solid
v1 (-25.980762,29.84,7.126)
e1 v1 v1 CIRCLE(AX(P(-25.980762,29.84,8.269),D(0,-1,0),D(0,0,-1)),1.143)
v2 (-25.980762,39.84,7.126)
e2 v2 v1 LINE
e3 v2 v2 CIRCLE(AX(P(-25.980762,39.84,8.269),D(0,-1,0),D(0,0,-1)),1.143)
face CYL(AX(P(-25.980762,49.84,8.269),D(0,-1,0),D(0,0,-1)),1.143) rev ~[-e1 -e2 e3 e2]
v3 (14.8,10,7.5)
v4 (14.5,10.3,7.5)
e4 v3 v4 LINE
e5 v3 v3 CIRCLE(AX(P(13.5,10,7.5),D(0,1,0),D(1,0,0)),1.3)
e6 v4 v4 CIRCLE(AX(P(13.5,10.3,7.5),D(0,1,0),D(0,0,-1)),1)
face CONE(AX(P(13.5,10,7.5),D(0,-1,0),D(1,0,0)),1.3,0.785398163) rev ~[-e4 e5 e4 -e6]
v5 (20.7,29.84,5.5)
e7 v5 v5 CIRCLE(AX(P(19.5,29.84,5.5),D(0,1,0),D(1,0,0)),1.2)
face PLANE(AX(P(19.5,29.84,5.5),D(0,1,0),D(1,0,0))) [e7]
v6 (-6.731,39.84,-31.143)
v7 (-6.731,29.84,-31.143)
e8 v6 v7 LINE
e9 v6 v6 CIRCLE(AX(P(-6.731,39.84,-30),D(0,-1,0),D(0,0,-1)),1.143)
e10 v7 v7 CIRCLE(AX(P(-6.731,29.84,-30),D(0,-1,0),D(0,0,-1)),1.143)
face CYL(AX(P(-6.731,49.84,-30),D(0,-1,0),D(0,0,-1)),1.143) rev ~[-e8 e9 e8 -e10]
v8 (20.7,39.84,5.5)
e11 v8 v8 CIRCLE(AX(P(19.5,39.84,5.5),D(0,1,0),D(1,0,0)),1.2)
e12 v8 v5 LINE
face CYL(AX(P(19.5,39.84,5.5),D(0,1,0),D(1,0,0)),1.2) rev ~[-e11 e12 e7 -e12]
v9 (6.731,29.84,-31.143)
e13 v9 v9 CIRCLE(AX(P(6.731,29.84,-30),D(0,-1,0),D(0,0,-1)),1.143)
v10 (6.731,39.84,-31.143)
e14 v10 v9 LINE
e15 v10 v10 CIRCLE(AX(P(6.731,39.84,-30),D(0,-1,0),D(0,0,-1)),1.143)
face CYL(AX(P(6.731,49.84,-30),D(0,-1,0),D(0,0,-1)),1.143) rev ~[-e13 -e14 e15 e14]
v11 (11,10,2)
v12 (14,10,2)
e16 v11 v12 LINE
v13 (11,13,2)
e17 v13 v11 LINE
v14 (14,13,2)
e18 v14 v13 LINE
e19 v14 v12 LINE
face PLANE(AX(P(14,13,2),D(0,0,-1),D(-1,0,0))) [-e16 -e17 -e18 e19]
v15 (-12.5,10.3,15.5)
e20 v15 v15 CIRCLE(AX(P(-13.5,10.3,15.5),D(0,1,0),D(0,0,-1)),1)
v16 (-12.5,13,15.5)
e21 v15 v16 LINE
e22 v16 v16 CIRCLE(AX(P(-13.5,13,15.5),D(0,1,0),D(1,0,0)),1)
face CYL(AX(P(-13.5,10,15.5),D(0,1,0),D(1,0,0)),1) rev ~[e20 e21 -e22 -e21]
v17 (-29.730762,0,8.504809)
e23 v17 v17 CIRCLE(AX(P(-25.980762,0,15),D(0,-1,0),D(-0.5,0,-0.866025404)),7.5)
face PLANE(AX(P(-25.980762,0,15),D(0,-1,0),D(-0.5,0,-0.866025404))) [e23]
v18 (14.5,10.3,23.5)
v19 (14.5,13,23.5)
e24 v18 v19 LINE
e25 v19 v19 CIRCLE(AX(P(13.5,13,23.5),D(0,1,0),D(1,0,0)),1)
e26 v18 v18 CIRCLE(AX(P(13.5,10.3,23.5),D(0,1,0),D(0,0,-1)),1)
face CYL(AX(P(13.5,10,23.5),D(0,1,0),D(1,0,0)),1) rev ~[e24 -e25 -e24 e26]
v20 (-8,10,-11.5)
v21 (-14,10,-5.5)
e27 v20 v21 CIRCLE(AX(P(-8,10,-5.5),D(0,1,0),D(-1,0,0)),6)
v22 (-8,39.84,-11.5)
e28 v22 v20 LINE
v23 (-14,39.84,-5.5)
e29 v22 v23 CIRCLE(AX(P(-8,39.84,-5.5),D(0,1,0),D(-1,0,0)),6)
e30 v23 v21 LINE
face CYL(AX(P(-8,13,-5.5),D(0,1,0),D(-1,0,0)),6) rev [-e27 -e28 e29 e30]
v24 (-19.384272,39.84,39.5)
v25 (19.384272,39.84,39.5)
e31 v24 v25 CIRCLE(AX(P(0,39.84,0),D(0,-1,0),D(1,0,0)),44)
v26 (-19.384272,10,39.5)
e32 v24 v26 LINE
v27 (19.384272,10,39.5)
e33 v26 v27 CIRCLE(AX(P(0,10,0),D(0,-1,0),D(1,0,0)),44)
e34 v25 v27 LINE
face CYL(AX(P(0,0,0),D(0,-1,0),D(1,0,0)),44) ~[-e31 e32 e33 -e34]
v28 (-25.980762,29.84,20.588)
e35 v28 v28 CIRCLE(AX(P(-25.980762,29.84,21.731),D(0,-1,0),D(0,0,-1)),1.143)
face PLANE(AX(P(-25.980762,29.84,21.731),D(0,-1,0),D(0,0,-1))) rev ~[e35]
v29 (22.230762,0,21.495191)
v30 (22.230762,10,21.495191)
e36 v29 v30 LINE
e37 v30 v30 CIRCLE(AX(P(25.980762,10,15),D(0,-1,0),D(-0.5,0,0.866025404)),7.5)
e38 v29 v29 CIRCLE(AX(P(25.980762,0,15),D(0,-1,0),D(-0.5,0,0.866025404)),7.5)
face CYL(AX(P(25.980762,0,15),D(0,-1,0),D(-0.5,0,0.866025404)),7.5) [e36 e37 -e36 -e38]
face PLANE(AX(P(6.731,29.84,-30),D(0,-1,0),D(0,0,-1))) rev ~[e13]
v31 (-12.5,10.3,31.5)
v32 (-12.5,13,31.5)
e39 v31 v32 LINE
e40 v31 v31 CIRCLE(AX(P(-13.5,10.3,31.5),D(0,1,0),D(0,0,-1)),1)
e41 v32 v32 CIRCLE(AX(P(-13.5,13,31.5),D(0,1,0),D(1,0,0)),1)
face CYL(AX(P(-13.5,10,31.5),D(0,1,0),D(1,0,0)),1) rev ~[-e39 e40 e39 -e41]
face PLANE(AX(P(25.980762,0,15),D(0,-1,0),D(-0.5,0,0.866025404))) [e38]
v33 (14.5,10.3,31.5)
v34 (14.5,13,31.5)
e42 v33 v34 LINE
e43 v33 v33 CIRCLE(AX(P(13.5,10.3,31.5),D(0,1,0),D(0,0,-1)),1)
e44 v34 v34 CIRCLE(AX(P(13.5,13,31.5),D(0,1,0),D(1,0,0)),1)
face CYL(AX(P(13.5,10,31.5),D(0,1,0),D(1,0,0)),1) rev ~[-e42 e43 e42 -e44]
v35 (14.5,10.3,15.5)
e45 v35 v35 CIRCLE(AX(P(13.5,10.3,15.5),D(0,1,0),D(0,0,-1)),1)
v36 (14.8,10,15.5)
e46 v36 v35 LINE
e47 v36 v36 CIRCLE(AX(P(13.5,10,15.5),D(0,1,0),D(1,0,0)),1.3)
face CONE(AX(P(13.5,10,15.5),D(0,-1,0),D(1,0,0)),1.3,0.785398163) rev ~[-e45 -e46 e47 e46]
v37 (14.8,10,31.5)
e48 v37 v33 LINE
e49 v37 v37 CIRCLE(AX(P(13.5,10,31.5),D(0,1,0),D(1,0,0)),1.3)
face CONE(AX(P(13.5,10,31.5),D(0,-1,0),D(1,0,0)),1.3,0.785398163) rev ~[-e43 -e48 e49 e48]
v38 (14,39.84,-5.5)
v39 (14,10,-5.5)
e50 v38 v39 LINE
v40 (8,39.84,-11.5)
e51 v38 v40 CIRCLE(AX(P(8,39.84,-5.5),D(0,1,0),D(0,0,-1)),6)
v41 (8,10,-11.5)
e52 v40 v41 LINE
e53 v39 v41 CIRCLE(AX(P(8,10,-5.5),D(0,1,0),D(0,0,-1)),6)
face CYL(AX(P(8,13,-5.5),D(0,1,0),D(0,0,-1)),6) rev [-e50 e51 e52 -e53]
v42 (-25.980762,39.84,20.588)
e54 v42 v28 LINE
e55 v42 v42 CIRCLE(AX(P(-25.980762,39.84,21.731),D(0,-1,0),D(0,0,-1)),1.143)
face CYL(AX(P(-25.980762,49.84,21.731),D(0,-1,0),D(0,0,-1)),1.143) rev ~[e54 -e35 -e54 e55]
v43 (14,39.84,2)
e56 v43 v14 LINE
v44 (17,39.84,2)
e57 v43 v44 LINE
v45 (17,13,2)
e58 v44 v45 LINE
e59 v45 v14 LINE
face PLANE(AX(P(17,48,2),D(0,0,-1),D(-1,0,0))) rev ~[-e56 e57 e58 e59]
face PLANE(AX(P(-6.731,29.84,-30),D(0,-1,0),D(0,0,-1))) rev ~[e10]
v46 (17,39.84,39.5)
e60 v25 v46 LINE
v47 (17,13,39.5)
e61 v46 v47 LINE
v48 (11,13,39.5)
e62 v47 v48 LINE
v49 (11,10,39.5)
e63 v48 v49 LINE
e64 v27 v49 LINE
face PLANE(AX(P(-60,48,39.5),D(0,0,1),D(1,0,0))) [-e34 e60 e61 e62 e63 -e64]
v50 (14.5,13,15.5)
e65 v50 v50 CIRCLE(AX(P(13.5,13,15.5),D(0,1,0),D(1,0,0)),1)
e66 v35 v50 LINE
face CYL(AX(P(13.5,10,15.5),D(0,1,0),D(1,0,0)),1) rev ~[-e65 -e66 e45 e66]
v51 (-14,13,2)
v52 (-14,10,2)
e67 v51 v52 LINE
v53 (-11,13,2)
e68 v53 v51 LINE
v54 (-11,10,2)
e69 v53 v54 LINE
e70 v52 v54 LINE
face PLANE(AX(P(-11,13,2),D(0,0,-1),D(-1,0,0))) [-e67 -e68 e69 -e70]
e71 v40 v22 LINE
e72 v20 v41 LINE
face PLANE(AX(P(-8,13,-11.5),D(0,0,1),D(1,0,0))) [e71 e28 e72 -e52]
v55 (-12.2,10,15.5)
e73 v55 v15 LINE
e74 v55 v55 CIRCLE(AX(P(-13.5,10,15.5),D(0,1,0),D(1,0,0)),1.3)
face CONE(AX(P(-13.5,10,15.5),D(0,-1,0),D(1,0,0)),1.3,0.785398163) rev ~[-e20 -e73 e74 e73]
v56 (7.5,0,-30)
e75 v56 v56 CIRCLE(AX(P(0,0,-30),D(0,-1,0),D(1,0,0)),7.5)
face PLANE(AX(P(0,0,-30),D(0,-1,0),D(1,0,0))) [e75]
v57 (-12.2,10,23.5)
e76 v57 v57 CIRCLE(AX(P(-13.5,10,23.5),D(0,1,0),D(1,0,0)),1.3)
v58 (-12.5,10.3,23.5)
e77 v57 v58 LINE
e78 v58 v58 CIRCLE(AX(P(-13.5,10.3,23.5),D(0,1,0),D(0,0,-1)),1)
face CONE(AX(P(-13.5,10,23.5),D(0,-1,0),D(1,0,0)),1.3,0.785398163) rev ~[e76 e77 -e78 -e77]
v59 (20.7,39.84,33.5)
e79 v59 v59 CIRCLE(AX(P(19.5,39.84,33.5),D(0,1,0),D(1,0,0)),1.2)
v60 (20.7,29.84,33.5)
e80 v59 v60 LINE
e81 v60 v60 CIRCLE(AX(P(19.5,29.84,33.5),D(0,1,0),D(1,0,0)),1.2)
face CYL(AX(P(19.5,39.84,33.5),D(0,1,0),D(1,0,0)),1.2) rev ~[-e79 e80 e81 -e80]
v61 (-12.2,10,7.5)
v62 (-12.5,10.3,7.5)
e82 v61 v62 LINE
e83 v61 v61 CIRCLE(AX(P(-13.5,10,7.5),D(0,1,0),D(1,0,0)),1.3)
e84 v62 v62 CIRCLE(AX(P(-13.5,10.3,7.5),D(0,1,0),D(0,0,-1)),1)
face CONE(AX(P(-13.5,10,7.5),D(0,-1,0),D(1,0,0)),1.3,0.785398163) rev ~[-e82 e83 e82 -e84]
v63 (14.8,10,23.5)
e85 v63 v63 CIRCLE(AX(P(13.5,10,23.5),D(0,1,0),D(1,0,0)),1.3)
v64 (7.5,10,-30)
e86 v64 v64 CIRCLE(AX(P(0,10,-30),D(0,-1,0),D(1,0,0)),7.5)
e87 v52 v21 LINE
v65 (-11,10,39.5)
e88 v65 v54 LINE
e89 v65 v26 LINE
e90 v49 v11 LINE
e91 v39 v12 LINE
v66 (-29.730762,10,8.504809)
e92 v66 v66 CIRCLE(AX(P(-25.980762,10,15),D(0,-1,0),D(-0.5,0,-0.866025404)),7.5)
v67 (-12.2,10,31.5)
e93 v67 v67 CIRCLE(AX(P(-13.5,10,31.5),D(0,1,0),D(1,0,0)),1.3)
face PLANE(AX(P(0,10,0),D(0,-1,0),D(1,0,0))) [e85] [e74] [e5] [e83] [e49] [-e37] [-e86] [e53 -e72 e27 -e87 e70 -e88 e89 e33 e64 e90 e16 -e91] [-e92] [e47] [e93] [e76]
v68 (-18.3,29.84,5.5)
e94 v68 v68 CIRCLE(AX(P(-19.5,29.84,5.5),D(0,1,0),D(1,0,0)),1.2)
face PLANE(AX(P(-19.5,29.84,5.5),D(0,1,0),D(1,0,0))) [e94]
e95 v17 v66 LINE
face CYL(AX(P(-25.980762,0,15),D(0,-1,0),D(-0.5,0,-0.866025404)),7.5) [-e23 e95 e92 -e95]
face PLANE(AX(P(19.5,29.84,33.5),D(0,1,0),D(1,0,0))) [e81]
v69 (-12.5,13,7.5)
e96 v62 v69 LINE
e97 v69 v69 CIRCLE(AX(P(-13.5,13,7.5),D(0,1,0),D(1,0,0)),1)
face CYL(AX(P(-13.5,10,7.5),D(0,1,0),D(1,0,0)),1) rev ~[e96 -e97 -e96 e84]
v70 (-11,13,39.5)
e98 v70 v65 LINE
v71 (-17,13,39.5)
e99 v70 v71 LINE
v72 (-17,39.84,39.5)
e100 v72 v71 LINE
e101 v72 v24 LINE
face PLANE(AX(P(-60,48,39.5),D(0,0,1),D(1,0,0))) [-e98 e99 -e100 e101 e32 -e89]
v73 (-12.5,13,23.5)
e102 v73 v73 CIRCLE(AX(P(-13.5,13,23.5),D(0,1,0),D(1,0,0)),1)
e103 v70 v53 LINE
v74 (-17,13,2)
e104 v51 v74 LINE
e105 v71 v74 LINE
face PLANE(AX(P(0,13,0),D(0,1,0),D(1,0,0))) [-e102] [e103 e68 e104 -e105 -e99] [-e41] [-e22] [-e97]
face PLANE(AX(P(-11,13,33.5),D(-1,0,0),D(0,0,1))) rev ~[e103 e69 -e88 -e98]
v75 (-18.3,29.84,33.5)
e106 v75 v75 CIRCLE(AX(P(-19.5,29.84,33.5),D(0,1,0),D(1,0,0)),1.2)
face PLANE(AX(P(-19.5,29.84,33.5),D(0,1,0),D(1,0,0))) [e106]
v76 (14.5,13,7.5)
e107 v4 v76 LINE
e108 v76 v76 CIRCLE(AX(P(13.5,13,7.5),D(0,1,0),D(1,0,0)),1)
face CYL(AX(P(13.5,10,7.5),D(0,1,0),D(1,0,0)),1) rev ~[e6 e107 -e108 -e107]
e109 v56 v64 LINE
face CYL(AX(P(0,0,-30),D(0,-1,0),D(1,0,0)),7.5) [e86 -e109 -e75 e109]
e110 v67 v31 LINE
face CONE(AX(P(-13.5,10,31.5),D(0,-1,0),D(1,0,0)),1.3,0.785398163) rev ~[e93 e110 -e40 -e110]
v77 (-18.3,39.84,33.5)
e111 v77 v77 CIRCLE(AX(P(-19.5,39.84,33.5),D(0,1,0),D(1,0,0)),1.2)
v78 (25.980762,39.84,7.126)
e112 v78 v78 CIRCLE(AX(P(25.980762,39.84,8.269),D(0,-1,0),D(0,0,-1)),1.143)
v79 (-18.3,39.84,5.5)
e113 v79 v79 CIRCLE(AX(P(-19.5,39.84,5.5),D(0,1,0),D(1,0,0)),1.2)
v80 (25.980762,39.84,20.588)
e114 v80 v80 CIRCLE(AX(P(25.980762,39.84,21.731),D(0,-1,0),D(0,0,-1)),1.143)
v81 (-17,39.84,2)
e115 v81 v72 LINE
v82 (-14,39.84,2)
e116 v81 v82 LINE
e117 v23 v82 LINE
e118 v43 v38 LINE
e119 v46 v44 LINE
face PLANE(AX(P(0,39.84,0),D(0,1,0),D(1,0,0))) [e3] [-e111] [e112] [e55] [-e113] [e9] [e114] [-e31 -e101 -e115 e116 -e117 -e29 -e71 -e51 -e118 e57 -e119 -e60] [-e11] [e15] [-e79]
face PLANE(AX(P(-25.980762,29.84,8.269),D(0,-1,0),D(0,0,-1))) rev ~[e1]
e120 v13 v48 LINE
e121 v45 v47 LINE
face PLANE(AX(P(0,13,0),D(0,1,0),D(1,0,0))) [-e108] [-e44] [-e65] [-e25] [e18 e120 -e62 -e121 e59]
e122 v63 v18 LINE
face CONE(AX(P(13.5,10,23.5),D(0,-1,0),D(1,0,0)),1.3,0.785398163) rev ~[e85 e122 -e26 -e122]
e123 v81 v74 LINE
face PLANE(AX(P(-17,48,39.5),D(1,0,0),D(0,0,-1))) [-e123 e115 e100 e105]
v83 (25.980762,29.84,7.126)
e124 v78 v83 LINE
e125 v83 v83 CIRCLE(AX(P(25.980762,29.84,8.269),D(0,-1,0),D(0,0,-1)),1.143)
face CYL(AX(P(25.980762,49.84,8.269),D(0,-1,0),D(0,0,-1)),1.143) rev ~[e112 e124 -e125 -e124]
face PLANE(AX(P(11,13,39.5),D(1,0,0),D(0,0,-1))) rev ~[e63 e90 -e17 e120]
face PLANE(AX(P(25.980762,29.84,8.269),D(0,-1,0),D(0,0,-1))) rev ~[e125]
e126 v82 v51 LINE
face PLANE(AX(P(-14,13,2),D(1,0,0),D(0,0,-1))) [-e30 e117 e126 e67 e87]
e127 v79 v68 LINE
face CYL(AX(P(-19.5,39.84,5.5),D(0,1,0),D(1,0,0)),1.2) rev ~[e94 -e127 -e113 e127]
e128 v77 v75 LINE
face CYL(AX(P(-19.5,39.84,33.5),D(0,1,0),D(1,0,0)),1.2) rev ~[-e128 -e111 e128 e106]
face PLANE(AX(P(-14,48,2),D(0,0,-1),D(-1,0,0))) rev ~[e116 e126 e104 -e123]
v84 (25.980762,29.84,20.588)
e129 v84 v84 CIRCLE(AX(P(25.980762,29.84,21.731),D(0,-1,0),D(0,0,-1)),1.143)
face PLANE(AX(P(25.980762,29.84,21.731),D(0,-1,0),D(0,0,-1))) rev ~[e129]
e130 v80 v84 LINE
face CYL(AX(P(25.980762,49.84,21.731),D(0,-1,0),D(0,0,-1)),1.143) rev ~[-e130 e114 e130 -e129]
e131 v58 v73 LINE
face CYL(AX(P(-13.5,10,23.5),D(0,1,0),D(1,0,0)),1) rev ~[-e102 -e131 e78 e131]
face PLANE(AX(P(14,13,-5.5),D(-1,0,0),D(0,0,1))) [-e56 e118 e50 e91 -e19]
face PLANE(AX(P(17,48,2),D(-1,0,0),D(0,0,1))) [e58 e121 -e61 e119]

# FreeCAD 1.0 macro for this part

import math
import FreeCAD as App
import Part
import Sketcher
Q = App.Units.Quantity


def add_polygon(sketch, points):
    """Adds a closed chain of lines whose ends are joined by coincident constraints."""
    first, n = sketch.GeometryCount, len(points)
    for a, b in zip(points, points[1:] + points[:1]):
        sketch.addGeometry(Part.LineSegment(App.Vector(*a, 0), App.Vector(*b, 0)), False)
    for i in range(n):
        sketch.addConstraint(Sketcher.Constraint("Coincident", first + i, 2, first + (i + 1) % n, 1))

doc = App.newDocument("Part")
params = doc.addObject("Spreadsheet::Sheet", "Params")
for row, (alias, value) in enumerate([
    ("sketch1_diameter", "88 mm"),
    ("pad1_length", "48 mm"),
    ("sketch2_radius", "6 mm"),
    ("sketch2_width", "3 mm"),
    ("sketch2_width2", "16 mm"),
    ("sketch2_height", "7.5 mm"),
    ("sketch2_height2", "37.5 mm"),
    ("pocket1_length", "35 mm"),
    ("sketch3_diameter", "11 mm"),
    ("sketch4_width", "20 mm"),
    ("sketch4_height", "6.5 mm"),
    ("sketch5_width", "6 mm"),
    ("sketch5_height", "7.2 mm"),
    ("sketch6_width", "6 mm"),
    ("sketch6_height", "7.2 mm"),
    ("sketch7_width", "120 mm"),
    ("sketch7_height", "25 mm"),
    ("sketch8_width", "34 mm"),
    ("sketch8_height", "10 mm"),
    ("pocket7_length", "37.5 mm"),
    ("sketch9_radius", "6 mm"),
    ("sketch9_width", "16 mm"),
    ("sketch9_width2", "3 mm"),
    ("sketch9_width3", "6 mm"),
    ("sketch9_width4", "20 mm"),
    ("sketch10_diameter", "2 mm"),
    ("hole_diameter", "2 mm"),
    ("hole_depth", "3 mm"),
    ("hole_csink_diameter", "2.6 mm"),
    ("sketch11_diameter", "95 mm"),
    ("pocket9_length", "8.16 mm"),
    ("sketch12_diameter", "95 mm"),
    ("pocket10_length", "10 mm"),
    ("sketch13_diameter", "15 mm"),
    ("pad2_length", "10 mm"),
    ("hole2_diameter", "2.286 mm"),
    ("hole2_depth", "10 mm"),
    ("sketch15_diameter", "2.4 mm"),
    ("pocket11_length", "10 mm"),
], start=1):
    params.set(f"A{row}", alias)
    params.set(f"B{row}", "=" + value)
    params.setAlias(f"B{row}", alias)

body = doc.addObject("PartDesign::Body", "Body")

# Sketch on XZ plane
sketch1 = body.newObject("Sketcher::SketchObject", "Sketch")
sketch1.AttachmentSupport = (doc.getObject("XZ_Plane"), [""])
sketch1.MapMode = "FlatFace"
sketch1.addGeometry(Part.Circle(App.Vector(0, 0, 0), App.Vector(0, 0, 1), 44), False)
sketch1.addConstraint([
    Sketcher.Constraint("Coincident", 0, 3, -1, 1),
    Sketcher.Constraint("Diameter", 0, Q("88 mm")),
])
sketch1.setExpression("Constraints[1]", "Params.sketch1_diameter")
pad1 = body.newObject("PartDesign::Pad", "Pad")
pad1.Profile = sketch1
pad1.setExpression("Length", "Params.pad1_length")
pad1.Reversed = True

# Sketch on XZ plane
sketch2 = body.newObject("Sketcher::SketchObject", "Sketch001")
sketch2.AttachmentSupport = (doc.getObject("XZ_Plane"), [""])
sketch2.MapMode = "FlatFace"
sketch2.AttachmentOffset = App.Placement(App.Vector(0, 0, -48), App.Rotation())
sketch2.addGeometry([
    Part.LineSegment(App.Vector(17, 2, 0), App.Vector(14, 2, 0)),  # 0
    Part.LineSegment(App.Vector(14, 2, 0), App.Vector(14, -5.5, 0)),  # 1
    Part.ArcOfCircle(Part.Circle(App.Vector(8, -5.5, 0), App.Vector(0, 0, 1), 6), math.radians(-90), math.radians(0)),  # 2
    Part.LineSegment(App.Vector(8, -11.5, 0), App.Vector(-8, -11.5, 0)),  # 3
    Part.ArcOfCircle(Part.Circle(App.Vector(-8, -5.5, 0), App.Vector(0, 0, 1), 6), math.radians(180), math.radians(270)),  # 4
    Part.LineSegment(App.Vector(-14, -5.5, 0), App.Vector(-14, 2, 0)),  # 5
    Part.LineSegment(App.Vector(-14, 2, 0), App.Vector(-17, 2, 0)),  # 6
    Part.LineSegment(App.Vector(-17, 2, 0), App.Vector(-17, 39.5, 0)),  # 7
    Part.LineSegment(App.Vector(-17, 39.5, 0), App.Vector(17, 39.5, 0)),  # 8
    Part.LineSegment(App.Vector(17, 39.5, 0), App.Vector(17, 2, 0)),  # 9
], False)
sketch2.addConstraint([
    Sketcher.Constraint("Coincident", 0, 2, 1, 1),
    Sketcher.Constraint("Tangent", 1, 2, 2, 2),
    Sketcher.Constraint("Tangent", 2, 1, 3, 1),
    Sketcher.Constraint("Tangent", 3, 2, 4, 2),
    Sketcher.Constraint("Tangent", 4, 1, 5, 1),
    Sketcher.Constraint("Coincident", 5, 2, 6, 1),
    Sketcher.Constraint("Coincident", 6, 2, 7, 1),
    Sketcher.Constraint("Coincident", 7, 2, 8, 1),
    Sketcher.Constraint("Coincident", 8, 2, 9, 1),
    Sketcher.Constraint("Coincident", 9, 2, 0, 1),
    Sketcher.Constraint("Horizontal", 0),
    Sketcher.Constraint("Vertical", 1),
    Sketcher.Constraint("Horizontal", 3),
    Sketcher.Constraint("Vertical", 5),
    Sketcher.Constraint("Horizontal", 6),
    Sketcher.Constraint("Vertical", 7),
    Sketcher.Constraint("Horizontal", 8),
    Sketcher.Constraint("Vertical", 9),
    Sketcher.Constraint("Equal", 2, 4),
    Sketcher.Constraint("Symmetric", 0, 2, 5, 2, -2),
    Sketcher.Constraint("Equal", 0, 6),
    Sketcher.Constraint("Radius", 2, Q("6 mm")),
    Sketcher.Constraint("DistanceX", 0, 2, 0, 1, Q("3 mm")),
    Sketcher.Constraint("DistanceX", 3, 2, 3, 1, Q("16 mm")),
    Sketcher.Constraint("DistanceY", 1, 2, 1, 1, Q("7.5 mm")),
    Sketcher.Constraint("DistanceY", 7, 1, 7, 2, Q("37.5 mm")),
    Sketcher.Constraint("DistanceY", -1, 1, 0, 2, Q("2 mm")),
])
sketch2.setExpression("Constraints[21]", "Params.sketch2_radius")
sketch2.setExpression("Constraints[22]", "Params.sketch2_width")
sketch2.setExpression("Constraints[23]", "Params.sketch2_width2")
sketch2.setExpression("Constraints[24]", "Params.sketch2_height")
sketch2.setExpression("Constraints[25]", "Params.sketch2_height2")
pocket1 = body.newObject("PartDesign::Pocket", "Pocket")
pocket1.Profile = sketch2
pocket1.setExpression("Length", "Params.pocket1_length")
pocket1.Reversed = True

# Sketch on XZ plane
sketch3 = body.newObject("Sketcher::SketchObject", "Sketch002")
sketch3.AttachmentSupport = (doc.getObject("XZ_Plane"), [""])
sketch3.MapMode = "FlatFace"
sketch3.AttachmentOffset = App.Placement(App.Vector(0, 0, -13), App.Rotation())
sketch3.addGeometry(Part.Circle(App.Vector(0, 0, 0), App.Vector(0, 0, 1), 6), False)
sketch3.addConstraint([
    Sketcher.Constraint("Coincident", 0, 3, -1, 1),
    Sketcher.Constraint("Diameter", 0, Q("11 mm")),
])
sketch3.setExpression("Constraints[1]", "Params.sketch3_diameter")
pocket2 = body.newObject("PartDesign::Pocket", "Pocket001")
pocket2.Profile = sketch3
pocket2.Type = "UpToFirst"
pocket2.Reversed = True

# Sketch on XZ plane
sketch4 = body.newObject("Sketcher::SketchObject", "Sketch003")
sketch4.AttachmentSupport = (doc.getObject("XZ_Plane"), [""])
sketch4.MapMode = "FlatFace"
sketch4.AttachmentOffset = App.Placement(App.Vector(0, 0, -13), App.Rotation())
add_polygon(sketch4, [(-10, 13), (-10, 20), (10, 20), (10, 13)])  # lines 0-3
sketch4.addConstraint([
    Sketcher.Constraint("Vertical", 0),
    Sketcher.Constraint("Horizontal", 1),
    Sketcher.Constraint("Vertical", 2),
    Sketcher.Constraint("Horizontal", 3),
    Sketcher.Constraint("DistanceX", 1, 1, 1, 2, Q("20 mm")),
    Sketcher.Constraint("DistanceY", 0, 1, 0, 2, Q("6.5 mm")),
    Sketcher.Constraint("DistanceX", 0, 2, -1, 1, Q("10 mm")),
    Sketcher.Constraint("DistanceY", -1, 1, 0, 2, Q("19.6 mm")),
])
sketch4.setExpression("Constraints[8]", "Params.sketch4_width")
sketch4.setExpression("Constraints[9]", "Params.sketch4_height")
pocket3 = body.newObject("PartDesign::Pocket", "Pocket002")
pocket3.Profile = sketch4
pocket3.Type = "UpToFirst"
pocket3.Reversed = True

# Sketch on XZ plane
sketch5 = body.newObject("Sketcher::SketchObject", "Sketch004")
sketch5.AttachmentSupport = (doc.getObject("XZ_Plane"), [""])
sketch5.MapMode = "FlatFace"
sketch5.AttachmentOffset = App.Placement(App.Vector(0, 0, -13), App.Rotation())
add_polygon(sketch5, [(-11, 26), (-11, 34), (-5, 34), (-5, 26)])  # lines 0-3
sketch5.addConstraint([
    Sketcher.Constraint("Vertical", 0),
    Sketcher.Constraint("Horizontal", 1),
    Sketcher.Constraint("Vertical", 2),
    Sketcher.Constraint("Horizontal", 3),
    Sketcher.Constraint("DistanceX", 1, 1, 1, 2, Q("6 mm")),
    Sketcher.Constraint("DistanceY", 0, 1, 0, 2, Q("7.2 mm")),
    Sketcher.Constraint("DistanceX", 0, 2, -1, 1, Q("11 mm")),
    Sketcher.Constraint("DistanceY", -1, 1, 0, 2, Q("33.5 mm")),
])
sketch5.setExpression("Constraints[8]", "Params.sketch5_width")
sketch5.setExpression("Constraints[9]", "Params.sketch5_height")
pocket4 = body.newObject("PartDesign::Pocket", "Pocket003")
pocket4.Profile = sketch5
pocket4.Type = "UpToFirst"
pocket4.Reversed = True

# Sketch on XZ plane
sketch6 = body.newObject("Sketcher::SketchObject", "Sketch005")
sketch6.AttachmentSupport = (doc.getObject("XZ_Plane"), [""])
sketch6.MapMode = "FlatFace"
sketch6.AttachmentOffset = App.Placement(App.Vector(0, 0, -13), App.Rotation())
add_polygon(sketch6, [(5, 26), (5, 34), (11, 34), (11, 26)])  # lines 0-3
sketch6.addConstraint([
    Sketcher.Constraint("Vertical", 0),
    Sketcher.Constraint("Horizontal", 1),
    Sketcher.Constraint("Vertical", 2),
    Sketcher.Constraint("Horizontal", 3),
    Sketcher.Constraint("DistanceX", 1, 1, 1, 2, Q("6 mm")),
    Sketcher.Constraint("DistanceY", 0, 1, 0, 2, Q("7.2 mm")),
    Sketcher.Constraint("DistanceX", -1, 1, 0, 2, Q("5 mm")),
    Sketcher.Constraint("DistanceY", -1, 1, 0, 2, Q("33.5 mm")),
])
sketch6.setExpression("Constraints[8]", "Params.sketch6_width")
sketch6.setExpression("Constraints[9]", "Params.sketch6_height")
pocket5 = body.newObject("PartDesign::Pocket", "Pocket004")
pocket5.Profile = sketch6
pocket5.Type = "UpToFirst"
pocket5.Reversed = True

# Sketch on XZ plane
sketch7 = body.newObject("Sketcher::SketchObject", "Sketch006")
sketch7.AttachmentSupport = (doc.getObject("XZ_Plane"), [""])
sketch7.MapMode = "FlatFace"
sketch7.AttachmentOffset = App.Placement(App.Vector(0, 0, -48), App.Rotation())
add_polygon(sketch7, [(-60, 40), (-60, 64), (60, 64), (60, 40)])  # lines 0-3
sketch7.addConstraint([
    Sketcher.Constraint("Vertical", 0),
    Sketcher.Constraint("Horizontal", 1),
    Sketcher.Constraint("Vertical", 2),
    Sketcher.Constraint("Horizontal", 3),
    Sketcher.Constraint("DistanceX", 1, 1, 1, 2, Q("120 mm")),
    Sketcher.Constraint("DistanceY", 0, 1, 0, 2, Q("25 mm")),
    Sketcher.Constraint("DistanceX", 0, 2, -1, 1, Q("60 mm")),
    Sketcher.Constraint("DistanceY", -1, 1, 0, 2, Q("64.5 mm")),
])
sketch7.setExpression("Constraints[8]", "Params.sketch7_width")
sketch7.setExpression("Constraints[9]", "Params.sketch7_height")
pocket6 = body.newObject("PartDesign::Pocket", "Pocket005")
pocket6.Profile = sketch7
pocket6.Type = "ThroughAll"
pocket6.Reversed = True

# Sketch on XY plane
sketch8 = body.newObject("Sketcher::SketchObject", "Sketch007")
sketch8.AttachmentSupport = (doc.getObject("XY_Plane"), [""])
sketch8.MapMode = "FlatFace"
sketch8.AttachmentOffset = App.Placement(App.Vector(0, 0, 39.5), App.Rotation())
add_polygon(sketch8, [(-17, 10), (-17, 0), (17, 0), (17, 10)])  # lines 0-3
sketch8.addConstraint([
    Sketcher.Constraint("Vertical", 0),
    Sketcher.Constraint("Horizontal", 1),
    Sketcher.Constraint("Vertical", 2),
    Sketcher.Constraint("Horizontal", 3),
    Sketcher.Constraint("Symmetric", 0, 2, 1, 2, -1, 1),
    Sketcher.Constraint("DistanceX", 1, 1, 1, 2, Q("34 mm")),
    Sketcher.Constraint("DistanceY", 0, 2, 0, 1, Q("10 mm")),
])
sketch8.setExpression("Constraints[9]", "Params.sketch8_width")
sketch8.setExpression("Constraints[10]", "Params.sketch8_height")
pocket7 = body.newObject("PartDesign::Pocket", "Pocket006")
pocket7.Profile = sketch8
pocket7.setExpression("Length", "Params.pocket7_length")

# Sketch on XZ plane
sketch9 = body.newObject("Sketcher::SketchObject", "Sketch008")
sketch9.AttachmentSupport = (doc.getObject("XZ_Plane"), [""])
sketch9.MapMode = "FlatFace"
sketch9.AttachmentOffset = App.Placement(App.Vector(0, 0, -13), App.Rotation())
sketch9.addGeometry(Part.LineSegment(App.Vector(14, 2, 0), App.Vector(14, -5.5, 0)), False)  # 0
sketch9.addGeometry(Part.ArcOfCircle(Part.Circle(App.Vector(8, -5.5, 0), App.Vector(0, 0, 1), 6), math.radians(-90), math.radians(0)), False)  # 1
sketch9.addGeometry(Part.LineSegment(App.Vector(8, -11.5, 0), App.Vector(-8, -11.5, 0)), False)  # 2
sketch9.addGeometry(Part.ArcOfCircle(Part.Circle(App.Vector(-8, -5.5, 0), App.Vector(0, 0, 1), 6), math.radians(180), math.radians(270)), False)  # 3
sketch9.addGeometry(Part.LineSegment(App.Vector(-14, -5.5, 0), App.Vector(-14, 2, 0)), False)  # 4
sketch9.addGeometry(Part.LineSegment(App.Vector(-14, 2, 0), App.Vector(-11, 2, 0)), False)  # 5
sketch9.addGeometry(Part.LineSegment(App.Vector(-11, 2, 0), App.Vector(-11, 26.3, 0)), False)  # 6
sketch9.addGeometry(Part.LineSegment(App.Vector(-11, 26.3, 0), App.Vector(-5, 26.3, 0)), False)  # 7
sketch9.addGeometry(Part.LineSegment(App.Vector(-5, 26.3, 0), App.Vector(-5, 33.5, 0)), False)  # 8
sketch9.addGeometry(Part.LineSegment(App.Vector(-5, 33.5, 0), App.Vector(-11, 33.5, 0)), False)  # 9
sketch9.addGeometry(Part.LineSegment(App.Vector(-11, 33.5, 0), App.Vector(-11, 39.5, 0)), False)  # 10
sketch9.addGeometry(Part.LineSegment(App.Vector(-11, 39.5, 0), App.Vector(11, 39.5, 0)), False)  # 11
sketch9.addGeometry(Part.LineSegment(App.Vector(11, 39.5, 0), App.Vector(11, 33.5, 0)), False)  # 12
sketch9.addGeometry(Part.LineSegment(App.Vector(11, 33.5, 0), App.Vector(5, 33.5, 0)), False)  # 13
sketch9.addGeometry(Part.LineSegment(App.Vector(5, 33.5, 0), App.Vector(5, 26.3, 0)), False)  # 14
sketch9.addGeometry(Part.LineSegment(App.Vector(5, 26.3, 0), App.Vector(11, 26.3, 0)), False)  # 15
sketch9.addGeometry(Part.LineSegment(App.Vector(11, 26.3, 0), App.Vector(11, 2, 0)), False)  # 16
sketch9.addGeometry(Part.LineSegment(App.Vector(11, 2, 0), App.Vector(14, 2, 0)), False)  # 17
add_polygon(sketch9, [(10, 19.6), (-10, 19.6), (-10, 13.1), (10, 13.1)])  # lines 18-21
sketch9.addConstraint([
    Sketcher.Constraint("Tangent", 0, 2, 1, 2),
    Sketcher.Constraint("Tangent", 1, 1, 2, 1),
    Sketcher.Constraint("Tangent", 2, 2, 3, 2),
    Sketcher.Constraint("Tangent", 3, 1, 4, 1),
    Sketcher.Constraint("Coincident", 4, 2, 5, 1),
    Sketcher.Constraint("Coincident", 5, 2, 6, 1),
    Sketcher.Constraint("Coincident", 6, 2, 7, 1),
    Sketcher.Constraint("Coincident", 7, 2, 8, 1),
    Sketcher.Constraint("Coincident", 8, 2, 9, 1),
    Sketcher.Constraint("Coincident", 9, 2, 10, 1),
    Sketcher.Constraint("Coincident", 10, 2, 11, 1),
    Sketcher.Constraint("Coincident", 11, 2, 12, 1),
    Sketcher.Constraint("Coincident", 12, 2, 13, 1),
    Sketcher.Constraint("Coincident", 13, 2, 14, 1),
    Sketcher.Constraint("Coincident", 14, 2, 15, 1),
    Sketcher.Constraint("Coincident", 15, 2, 16, 1),
    Sketcher.Constraint("Coincident", 16, 2, 17, 1),
    Sketcher.Constraint("Coincident", 17, 2, 0, 1),
    Sketcher.Constraint("Vertical", 0),
    Sketcher.Constraint("Horizontal", 2),
    Sketcher.Constraint("Vertical", 4),
    Sketcher.Constraint("Horizontal", 5),
    Sketcher.Constraint("Vertical", 6),
    Sketcher.Constraint("Horizontal", 7),
    Sketcher.Constraint("Vertical", 8),
    Sketcher.Constraint("Horizontal", 9),
    Sketcher.Constraint("Vertical", 10),
    Sketcher.Constraint("Horizontal", 11),
    Sketcher.Constraint("Vertical", 12),
    Sketcher.Constraint("Horizontal", 13),
    Sketcher.Constraint("Vertical", 14),
    Sketcher.Constraint("Horizontal", 15),
    Sketcher.Constraint("Vertical", 16),
    Sketcher.Constraint("Horizontal", 17),
    Sketcher.Constraint("Horizontal", 18),
    Sketcher.Constraint("Vertical", 19),
    Sketcher.Constraint("Horizontal", 20),
    Sketcher.Constraint("Vertical", 21),
    Sketcher.Constraint("Equal", 1, 3),
    Sketcher.Constraint("Symmetric", 9, 2, 12, 2, -2),
    Sketcher.Constraint("Symmetric", 7, 2, 14, 2, -2),
    Sketcher.Constraint("Symmetric", 5, 2, 16, 2, -2),
    Sketcher.Constraint("Vertical", 6, 2, 9, 2),
    Sketcher.Constraint("Equal", 5, 17),
    Sketcher.Constraint("Equal", 15, 10),
    Sketcher.Constraint("Radius", 1, Q("6 mm")),
    Sketcher.Constraint("DistanceX", 2, 2, 2, 1, Q("16 mm")),
    Sketcher.Constraint("DistanceX", 5, 1, 5, 2, Q("3 mm")),
    Sketcher.Constraint("DistanceX", 7, 1, 7, 2, Q("6 mm")),
    Sketcher.Constraint("DistanceX", 18, 2, 18, 1, Q("20 mm")),
    Sketcher.Constraint("DistanceY", 0, 2, 0, 1, Q("7.5 mm")),
    Sketcher.Constraint("DistanceY", 6, 1, 6, 2, Q("24.3 mm")),
    Sketcher.Constraint("DistanceY", 8, 1, 8, 2, Q("7.2 mm")),
    Sketcher.Constraint("DistanceY", 19, 2, 19, 1, Q("6.5 mm")),
    Sketcher.Constraint("DistanceY", -1, 1, 4, 2, Q("2 mm")),
    Sketcher.Constraint("DistanceX", 18, 2, -1, 1, Q("10 mm")),
    Sketcher.Constraint("DistanceY", -1, 1, 18, 2, Q("19.6 mm")),
])
sketch9.setExpression("Constraints[49]", "Params.sketch9_radius")
sketch9.setExpression("Constraints[50]", "Params.sketch9_width")
sketch9.setExpression("Constraints[51]", "Params.sketch9_width2")
sketch9.setExpression("Constraints[52]", "Params.sketch9_width3")
sketch9.setExpression("Constraints[53]", "Params.sketch9_width4")
pocket8 = body.newObject("PartDesign::Pocket", "Pocket007")
pocket8.Profile = sketch9
pocket8.Type = "ThroughAll"
pocket8.Reversed = True

# Sketch on XZ plane
sketch10 = body.newObject("Sketcher::SketchObject", "Sketch009")
sketch10.AttachmentSupport = (doc.getObject("XZ_Plane"), [""])
sketch10.MapMode = "FlatFace"
sketch10.AttachmentOffset = App.Placement(App.Vector(0, 0, -10), App.Rotation())
sketch10.addGeometry([
    Part.Circle(App.Vector(-13.5, 31.5, 0), App.Vector(0, 0, 1), 1),  # 0
    Part.Circle(App.Vector(-13.5, 23.5, 0), App.Vector(0, 0, 1), 1),  # 1
    Part.Circle(App.Vector(-13.5, 15.5, 0), App.Vector(0, 0, 1), 1),  # 2
    Part.Circle(App.Vector(-13.5, 7.5, 0), App.Vector(0, 0, 1), 1),  # 3
    Part.Circle(App.Vector(13.5, 31.5, 0), App.Vector(0, 0, 1), 1),  # 4
    Part.Circle(App.Vector(13.5, 23.5, 0), App.Vector(0, 0, 1), 1),  # 5
    Part.Circle(App.Vector(13.5, 15.5, 0), App.Vector(0, 0, 1), 1),  # 6
    Part.Circle(App.Vector(13.5, 7.5, 0), App.Vector(0, 0, 1), 1),  # 7
], False)
sketch10.addConstraint([
    Sketcher.Constraint("Equal", 0, 1),
    Sketcher.Constraint("Equal", 1, 2),
    Sketcher.Constraint("Equal", 2, 3),
    Sketcher.Constraint("Equal", 3, 4),
    Sketcher.Constraint("Equal", 4, 5),
    Sketcher.Constraint("Equal", 5, 6),
    Sketcher.Constraint("Equal", 6, 7),
    Sketcher.Constraint("Symmetric", 0, 3, 4, 3, -2),
    Sketcher.Constraint("Symmetric", 1, 3, 5, 3, -2),
    Sketcher.Constraint("Symmetric", 2, 3, 6, 3, -2),
    Sketcher.Constraint("Symmetric", 3, 3, 7, 3, -2),
    Sketcher.Constraint("Vertical", 0, 3, 1, 3),
    Sketcher.Constraint("Vertical", 1, 3, 2, 3),
    Sketcher.Constraint("Vertical", 2, 3, 3, 3),
    Sketcher.Constraint("Diameter", 0, Q("2 mm")),
    Sketcher.Constraint("DistanceY", 1, 3, 0, 3, Q("8 mm")),
    Sketcher.Constraint("DistanceY", 2, 3, 1, 3, Q("8 mm")),
    Sketcher.Constraint("DistanceY", 3, 3, 2, 3, Q("8 mm")),
    Sketcher.Constraint("DistanceX", 0, 3, 4, 3, Q("27 mm")),
    Sketcher.Constraint("DistanceY", -1, 1, 0, 3, Q("31.5 mm")),
])
sketch10.setExpression("Constraints[14]", "Params.sketch10_diameter")
doc.recompute()
hole = body.newObject("PartDesign::Hole", "Hole")
hole.Profile = sketch10
hole.ThreadType = "None"
hole.setExpression("Diameter", "Params.hole_diameter")
hole.DepthType = "Dimension"
hole.setExpression("Depth", "Params.hole_depth")
hole.DrillPoint = "Flat"
hole.HoleCutType = "Countersink"
hole.setExpression("HoleCutDiameter", "Params.hole_csink_diameter")
hole.HoleCutCountersinkAngle = 90

# Sketch on XZ plane
sketch11 = body.newObject("Sketcher::SketchObject", "Sketch010")
sketch11.AttachmentSupport = (doc.getObject("XZ_Plane"), [""])
sketch11.MapMode = "FlatFace"
sketch11.AttachmentOffset = App.Placement(App.Vector(0, 0, -48), App.Rotation())
sketch11.addGeometry(Part.Circle(App.Vector(0, 0, 0), App.Vector(0, 0, 1), 48), False)
sketch11.addConstraint([
    Sketcher.Constraint("Coincident", 0, 3, -1, 1),
    Sketcher.Constraint("Diameter", 0, Q("95 mm")),
])
sketch11.setExpression("Constraints[1]", "Params.sketch11_diameter")
pocket9 = body.newObject("PartDesign::Pocket", "Pocket008")
pocket9.Profile = sketch11
pocket9.setExpression("Length", "Params.pocket9_length")
pocket9.Reversed = True

# Sketch on XZ plane
sketch12 = body.newObject("Sketcher::SketchObject", "Sketch011")
sketch12.AttachmentSupport = (doc.getObject("XZ_Plane"), [""])
sketch12.MapMode = "FlatFace"
sketch12.addGeometry(Part.Circle(App.Vector(0, 0, 0), App.Vector(0, 0, 1), 48), False)
sketch12.addConstraint([
    Sketcher.Constraint("Coincident", 0, 3, -1, 1),
    Sketcher.Constraint("Diameter", 0, Q("95 mm")),
])
sketch12.setExpression("Constraints[1]", "Params.sketch12_diameter")
pocket10 = body.newObject("PartDesign::Pocket", "Pocket009")
pocket10.Profile = sketch12
pocket10.setExpression("Length", "Params.pocket10_length")

# Sketch on XZ plane
sketch13 = body.newObject("Sketcher::SketchObject", "Sketch012")
sketch13.AttachmentSupport = (doc.getObject("XZ_Plane"), [""])
sketch13.MapMode = "FlatFace"
sketch13.addGeometry(Part.Circle(App.Vector(0, -30, 0), App.Vector(0, 0, 1), 8), False)
sketch13.addConstraint([
    Sketcher.Constraint("PointOnObject", 0, 3, -2),
    Sketcher.Constraint("Diameter", 0, Q("15 mm")),
    Sketcher.Constraint("DistanceY", 0, 3, -1, 1, Q("30 mm")),
])
sketch13.setExpression("Constraints[1]", "Params.sketch13_diameter")
pad2 = body.newObject("PartDesign::Pad", "Pad001")
pad2.Profile = sketch13
pad2.setExpression("Length", "Params.pad2_length")
pad2.Reversed = True
doc.recompute()

polarpattern = body.newObject("PartDesign::PolarPattern", "PolarPattern")
polarpattern.Originals = [pad2]
polarpattern.Axis = (doc.getObject("Y_Axis"), [""])
polarpattern.Angle = 360
polarpattern.Occurrences = 3
body.Tip = polarpattern

# Sketch on XZ plane
sketch14 = body.newObject("Sketcher::SketchObject", "Sketch013")
sketch14.AttachmentSupport = (doc.getObject("XZ_Plane"), [""])
sketch14.MapMode = "FlatFace"
sketch14.AttachmentOffset = App.Placement(App.Vector(0, 0, -39.84), App.Rotation())
sketch14.addGeometry([
    Part.Circle(App.Vector(-6.7, -30, 0), App.Vector(0, 0, 1), 1.1),  # 0
    Part.Circle(App.Vector(6.7, -30, 0), App.Vector(0, 0, 1), 1.1),  # 1
    Part.Circle(App.Vector(-26, 8.3, 0), App.Vector(0, 0, 1), 1.1),  # 2
    Part.Circle(App.Vector(-26, 21.7, 0), App.Vector(0, 0, 1), 1.1),  # 3
    Part.Circle(App.Vector(26, 8.3, 0), App.Vector(0, 0, 1), 1.1),  # 4
    Part.Circle(App.Vector(26, 21.7, 0), App.Vector(0, 0, 1), 1.1),  # 5
], False)
sketch14.addConstraint([
    Sketcher.Constraint("Equal", 0, 1),
    Sketcher.Constraint("Equal", 1, 2),
    Sketcher.Constraint("Equal", 2, 3),
    Sketcher.Constraint("Equal", 3, 4),
    Sketcher.Constraint("Equal", 4, 5),
    Sketcher.Constraint("Symmetric", 0, 3, 1, 3, -2),
    Sketcher.Constraint("Symmetric", 2, 3, 4, 3, -2),
    Sketcher.Constraint("Symmetric", 3, 3, 5, 3, -2),
    Sketcher.Constraint("Vertical", 2, 3, 3, 3),
    Sketcher.Constraint("Diameter", 0, Q("2.286 mm")),
    Sketcher.Constraint("DistanceY", 0, 3, -1, 1, Q("30 mm")),
    Sketcher.Constraint("DistanceX", 0, 3, -1, 1, Q("6.731 mm")),
    Sketcher.Constraint("DistanceY", -1, 1, 2, 3, Q("8.269 mm")),
    Sketcher.Constraint("DistanceY", -1, 1, 3, 3, Q("21.731 mm")),
    Sketcher.Constraint("DistanceX", 2, 3, -1, 1, Q("25.980762 mm")),
])
doc.recompute()
hole2 = body.newObject("PartDesign::Hole", "Hole001")
hole2.Profile = sketch14
hole2.ThreadType = "None"
hole2.setExpression("Diameter", "Params.hole2_diameter")
hole2.DepthType = "Dimension"
hole2.setExpression("Depth", "Params.hole2_depth")
hole2.DrillPoint = "Flat"
hole2.Reversed = True

# Sketch on XZ plane
sketch15 = body.newObject("Sketcher::SketchObject", "Sketch014")
sketch15.AttachmentSupport = (doc.getObject("XZ_Plane"), [""])
sketch15.MapMode = "FlatFace"
sketch15.AttachmentOffset = App.Placement(App.Vector(0, 0, -39.84), App.Rotation())
sketch15.addGeometry([
    Part.Circle(App.Vector(-19.5, 5.5, 0), App.Vector(0, 0, 1), 1.2),
    Part.Circle(App.Vector(-19.5, 33.5, 0), App.Vector(0, 0, 1), 1.2),
    Part.Circle(App.Vector(19.5, 5.5, 0), App.Vector(0, 0, 1), 1.2),
    Part.Circle(App.Vector(19.5, 33.5, 0), App.Vector(0, 0, 1), 1.2),
], False)
sketch15.addConstraint([
    Sketcher.Constraint("Equal", 0, 1),
    Sketcher.Constraint("Equal", 1, 2),
    Sketcher.Constraint("Equal", 2, 3),
    Sketcher.Constraint("Symmetric", 0, 3, 2, 3, -2),
    Sketcher.Constraint("Symmetric", 1, 3, 3, 3, -2),
    Sketcher.Constraint("Vertical", 0, 3, 1, 3),
    Sketcher.Constraint("Diameter", 0, Q("2.4 mm")),
    Sketcher.Constraint("DistanceY", 0, 3, 1, 3, Q("28 mm")),
    Sketcher.Constraint("DistanceX", 0, 3, 2, 3, Q("39 mm")),
    Sketcher.Constraint("DistanceY", -1, 1, 0, 3, Q("5.5 mm")),
])
sketch15.setExpression("Constraints[6]", "Params.sketch15_diameter")
pocket11 = body.newObject("PartDesign::Pocket", "Pocket010")
pocket11.Profile = sketch15
pocket11.setExpression("Length", "Params.pocket11_length")
pocket11.Reversed = True

doc.recompute()
